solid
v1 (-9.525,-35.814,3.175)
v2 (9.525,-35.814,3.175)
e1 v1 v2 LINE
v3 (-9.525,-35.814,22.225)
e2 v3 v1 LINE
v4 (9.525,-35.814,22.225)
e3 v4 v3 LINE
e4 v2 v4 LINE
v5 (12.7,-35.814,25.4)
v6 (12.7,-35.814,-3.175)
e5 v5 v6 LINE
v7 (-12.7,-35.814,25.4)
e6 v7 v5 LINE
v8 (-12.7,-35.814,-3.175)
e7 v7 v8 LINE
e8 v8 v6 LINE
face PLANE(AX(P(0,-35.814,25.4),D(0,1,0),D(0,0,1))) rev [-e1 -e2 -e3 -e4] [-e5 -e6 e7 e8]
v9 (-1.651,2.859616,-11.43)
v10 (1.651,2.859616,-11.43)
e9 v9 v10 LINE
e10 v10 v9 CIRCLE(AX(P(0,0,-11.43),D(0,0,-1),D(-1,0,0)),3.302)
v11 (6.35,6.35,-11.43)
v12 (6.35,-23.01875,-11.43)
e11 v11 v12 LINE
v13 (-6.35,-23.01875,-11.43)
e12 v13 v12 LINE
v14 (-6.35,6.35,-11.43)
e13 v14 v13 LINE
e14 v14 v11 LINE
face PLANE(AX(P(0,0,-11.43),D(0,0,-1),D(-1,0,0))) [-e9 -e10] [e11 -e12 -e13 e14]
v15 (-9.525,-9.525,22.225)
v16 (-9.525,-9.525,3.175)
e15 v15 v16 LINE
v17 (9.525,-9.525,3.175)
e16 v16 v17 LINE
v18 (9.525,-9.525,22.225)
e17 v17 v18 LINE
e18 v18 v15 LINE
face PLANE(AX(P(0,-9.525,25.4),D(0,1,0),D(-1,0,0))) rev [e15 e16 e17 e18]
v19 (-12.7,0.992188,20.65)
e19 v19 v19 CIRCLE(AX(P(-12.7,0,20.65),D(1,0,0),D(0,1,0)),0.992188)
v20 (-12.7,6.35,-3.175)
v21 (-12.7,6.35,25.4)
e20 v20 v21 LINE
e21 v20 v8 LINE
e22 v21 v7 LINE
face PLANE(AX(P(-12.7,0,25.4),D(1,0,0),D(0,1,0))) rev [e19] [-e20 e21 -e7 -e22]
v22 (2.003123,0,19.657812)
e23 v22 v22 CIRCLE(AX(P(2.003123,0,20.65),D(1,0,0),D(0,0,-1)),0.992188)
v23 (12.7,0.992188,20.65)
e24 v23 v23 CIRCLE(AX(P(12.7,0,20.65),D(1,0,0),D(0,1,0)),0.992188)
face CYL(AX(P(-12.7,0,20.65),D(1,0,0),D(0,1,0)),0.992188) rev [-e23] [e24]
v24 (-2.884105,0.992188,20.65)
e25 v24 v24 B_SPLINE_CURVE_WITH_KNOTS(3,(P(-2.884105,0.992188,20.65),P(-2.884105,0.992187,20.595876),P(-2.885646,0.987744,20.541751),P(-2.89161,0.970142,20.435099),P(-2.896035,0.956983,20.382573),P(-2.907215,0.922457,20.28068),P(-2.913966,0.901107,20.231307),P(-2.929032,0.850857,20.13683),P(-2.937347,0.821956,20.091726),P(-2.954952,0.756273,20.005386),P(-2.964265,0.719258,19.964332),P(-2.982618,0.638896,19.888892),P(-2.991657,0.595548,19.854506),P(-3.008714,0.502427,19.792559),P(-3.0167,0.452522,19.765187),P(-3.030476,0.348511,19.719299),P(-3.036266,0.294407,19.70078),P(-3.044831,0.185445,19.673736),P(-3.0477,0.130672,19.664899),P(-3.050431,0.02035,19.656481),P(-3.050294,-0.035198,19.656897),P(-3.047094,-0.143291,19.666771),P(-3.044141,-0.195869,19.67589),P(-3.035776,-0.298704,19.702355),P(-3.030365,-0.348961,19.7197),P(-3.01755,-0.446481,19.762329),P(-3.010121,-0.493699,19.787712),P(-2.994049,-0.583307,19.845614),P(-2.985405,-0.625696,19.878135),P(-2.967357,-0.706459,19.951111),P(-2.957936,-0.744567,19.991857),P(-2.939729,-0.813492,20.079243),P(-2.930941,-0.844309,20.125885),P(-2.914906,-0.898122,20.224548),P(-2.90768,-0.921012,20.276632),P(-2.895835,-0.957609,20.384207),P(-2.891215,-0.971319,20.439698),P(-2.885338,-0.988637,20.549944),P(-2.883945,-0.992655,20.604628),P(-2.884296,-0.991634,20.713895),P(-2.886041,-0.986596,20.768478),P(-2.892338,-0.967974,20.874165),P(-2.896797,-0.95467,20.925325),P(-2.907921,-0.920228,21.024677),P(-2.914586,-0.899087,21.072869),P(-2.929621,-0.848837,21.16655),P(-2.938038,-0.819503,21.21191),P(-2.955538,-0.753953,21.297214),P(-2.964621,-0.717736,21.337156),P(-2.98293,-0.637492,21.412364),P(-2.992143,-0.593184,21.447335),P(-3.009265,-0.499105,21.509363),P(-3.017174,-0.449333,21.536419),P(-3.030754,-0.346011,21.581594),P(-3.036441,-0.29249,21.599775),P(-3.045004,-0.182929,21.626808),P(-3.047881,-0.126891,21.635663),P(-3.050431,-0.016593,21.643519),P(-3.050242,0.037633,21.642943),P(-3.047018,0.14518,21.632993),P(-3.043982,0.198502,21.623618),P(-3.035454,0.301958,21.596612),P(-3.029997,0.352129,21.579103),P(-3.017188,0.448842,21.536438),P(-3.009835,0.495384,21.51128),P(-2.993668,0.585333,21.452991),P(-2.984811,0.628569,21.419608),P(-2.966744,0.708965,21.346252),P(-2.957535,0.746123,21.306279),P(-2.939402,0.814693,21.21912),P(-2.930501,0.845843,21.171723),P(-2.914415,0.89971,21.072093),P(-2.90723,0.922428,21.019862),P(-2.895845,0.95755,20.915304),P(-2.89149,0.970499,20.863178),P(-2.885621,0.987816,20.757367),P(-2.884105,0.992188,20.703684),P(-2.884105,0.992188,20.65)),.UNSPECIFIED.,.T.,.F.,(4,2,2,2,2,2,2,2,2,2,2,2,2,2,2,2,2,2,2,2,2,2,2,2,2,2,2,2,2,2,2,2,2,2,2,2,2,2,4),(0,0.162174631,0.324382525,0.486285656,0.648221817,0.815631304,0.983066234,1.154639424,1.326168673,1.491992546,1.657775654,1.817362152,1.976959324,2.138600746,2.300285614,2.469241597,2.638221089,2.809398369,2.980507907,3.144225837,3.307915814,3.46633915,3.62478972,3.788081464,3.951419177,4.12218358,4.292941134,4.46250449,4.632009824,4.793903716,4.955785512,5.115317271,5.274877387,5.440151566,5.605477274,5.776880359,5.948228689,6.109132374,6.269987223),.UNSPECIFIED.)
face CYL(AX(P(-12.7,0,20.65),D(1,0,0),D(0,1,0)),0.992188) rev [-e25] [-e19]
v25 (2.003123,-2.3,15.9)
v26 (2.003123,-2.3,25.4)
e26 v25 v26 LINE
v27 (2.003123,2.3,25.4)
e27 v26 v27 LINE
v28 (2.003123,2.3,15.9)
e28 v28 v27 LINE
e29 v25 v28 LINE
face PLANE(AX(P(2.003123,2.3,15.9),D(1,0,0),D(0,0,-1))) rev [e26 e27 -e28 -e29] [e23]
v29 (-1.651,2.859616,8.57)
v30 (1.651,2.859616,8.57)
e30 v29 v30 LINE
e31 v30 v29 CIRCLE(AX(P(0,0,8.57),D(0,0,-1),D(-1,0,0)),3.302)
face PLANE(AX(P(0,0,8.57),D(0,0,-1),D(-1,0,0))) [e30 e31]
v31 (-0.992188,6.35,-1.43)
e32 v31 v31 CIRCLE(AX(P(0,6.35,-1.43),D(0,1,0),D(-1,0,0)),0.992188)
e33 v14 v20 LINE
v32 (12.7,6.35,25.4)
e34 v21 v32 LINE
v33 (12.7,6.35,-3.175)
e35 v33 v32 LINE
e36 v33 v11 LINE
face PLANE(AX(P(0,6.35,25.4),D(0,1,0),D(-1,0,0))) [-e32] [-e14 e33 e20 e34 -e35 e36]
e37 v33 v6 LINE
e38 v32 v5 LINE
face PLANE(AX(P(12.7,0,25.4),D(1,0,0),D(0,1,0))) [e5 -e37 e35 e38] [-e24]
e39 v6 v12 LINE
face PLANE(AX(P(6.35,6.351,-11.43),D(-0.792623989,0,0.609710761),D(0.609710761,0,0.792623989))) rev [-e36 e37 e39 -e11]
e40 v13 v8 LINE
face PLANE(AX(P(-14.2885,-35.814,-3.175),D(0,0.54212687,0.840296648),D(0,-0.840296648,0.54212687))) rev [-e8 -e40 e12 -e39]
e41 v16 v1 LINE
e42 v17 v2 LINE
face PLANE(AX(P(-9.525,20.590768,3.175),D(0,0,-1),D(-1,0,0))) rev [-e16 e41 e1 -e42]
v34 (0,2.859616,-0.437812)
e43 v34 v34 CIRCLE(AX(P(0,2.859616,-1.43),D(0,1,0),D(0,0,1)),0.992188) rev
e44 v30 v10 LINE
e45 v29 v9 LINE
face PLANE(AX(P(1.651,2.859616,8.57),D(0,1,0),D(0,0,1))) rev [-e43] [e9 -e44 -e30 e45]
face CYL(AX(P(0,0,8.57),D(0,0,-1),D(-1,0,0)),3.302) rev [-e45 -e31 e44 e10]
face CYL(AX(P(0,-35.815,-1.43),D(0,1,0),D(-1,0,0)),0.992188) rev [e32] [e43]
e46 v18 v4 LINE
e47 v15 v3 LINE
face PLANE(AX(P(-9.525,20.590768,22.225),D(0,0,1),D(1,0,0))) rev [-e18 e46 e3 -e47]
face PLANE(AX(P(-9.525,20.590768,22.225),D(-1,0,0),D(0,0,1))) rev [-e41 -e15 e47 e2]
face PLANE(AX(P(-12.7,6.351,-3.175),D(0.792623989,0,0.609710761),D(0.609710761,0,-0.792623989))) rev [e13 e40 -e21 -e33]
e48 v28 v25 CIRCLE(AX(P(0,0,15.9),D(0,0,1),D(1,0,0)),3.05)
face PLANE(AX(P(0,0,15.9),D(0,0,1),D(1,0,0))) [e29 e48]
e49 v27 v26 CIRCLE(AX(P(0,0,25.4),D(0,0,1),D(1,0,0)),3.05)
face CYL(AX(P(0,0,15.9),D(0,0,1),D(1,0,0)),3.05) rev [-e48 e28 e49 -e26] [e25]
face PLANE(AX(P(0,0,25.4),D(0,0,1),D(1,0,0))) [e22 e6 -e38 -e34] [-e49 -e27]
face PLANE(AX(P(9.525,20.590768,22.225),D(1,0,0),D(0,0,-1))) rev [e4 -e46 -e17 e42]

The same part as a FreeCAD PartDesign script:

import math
import FreeCAD as App
import Part
import Sketcher

V = App.Vector
Q = App.Units.Quantity


def add_polygon(sketch, points):
    """Adds a closed chain of lines whose ends are joined by coincident constraints."""
    first, n = sketch.GeometryCount, len(points)
    for a, b in zip(points, points[1:] + points[:1]):
        sketch.addGeometry(Part.LineSegment(App.Vector(*a, 0), App.Vector(*b, 0)), False)
    for i in range(n):
        sketch.addConstraint(Sketcher.Constraint("Coincident", first + i, 2, first + (i + 1) % n, 1))

doc = App.newDocument("Part")
params = doc.addObject("Spreadsheet::Sheet", "Params")
for row, (alias, value) in enumerate([
    ("sketch1_width", "1 in"),
    ("sketch1_height", "0.5 in"),
    ("sketch1_height2", "1.16 in"),
    ("sketch1_width2", "0.0625 in"),
    ("pad1_length", "1 in"),
    ("pocket1_length", "9.5 mm"),
    ("sketch3_width", "1 in"),
    ("sketch3_height", "1.66 in"),
    ("pad2_length", "0.45 in"),
    ("sketch4_height", "0.325 in"),
    ("sketch5_width", "0.25 in"),
    ("sketch5_height", "0.325 in"),
    ("pocket3_length", "1.66 in"),
    ("sketch6_width", "0.25 in"),
    ("sketch6_height", "0.325 in"),
    ("pocket4_length", "1.66 in"),
    ("sketch7_radius", "0.13 in"),
    ("sketch7_width", "0.13 in"),
    ("pocket5_length", "20 mm"),
    ("sketch8_width", "0.75 in"),
    ("pocket6_length", "1.035 in"),
    ("sketch9_height", "0.5 in"),
    ("sketch9_width", "0.0625 in"),
    ("sketch10_height", "0.5 in"),
    ("sketch10_width", "0.0625 in"),
    ("sketch11_diameter", "0.078125 in"),
    ("sketch12_diameter", "0.078125 in"),
], start=1):
    params.set(f"A{row}", alias)
    params.set(f"B{row}", "=" + value)
    params.setAlias(f"B{row}", alias)

body = doc.addObject("PartDesign::Body", "Body")

sketch1 = doc.addObject("Sketcher::SketchObject", "Sketch")
body.addObject(sketch1)
sketch1.AttachmentSupport = (doc.XY_Plane, [""])
sketch1.MapMode = "FlatFace"
add_polygon(sketch1, [(12.7, -6.3), (14.3, -6.3), (14.3, 6.3), (-14.3, 6.3), (-14.3, -6.3), (-12.7, -6.3), (-12.7, -35.8), (12.7, -35.8)])
sketch1.addConstraint(Sketcher.Constraint("Horizontal", 0))
sketch1.addConstraint(Sketcher.Constraint("Vertical", 1))
sketch1.addConstraint(Sketcher.Constraint("Horizontal", 2))
sketch1.addConstraint(Sketcher.Constraint("Vertical", 3))
sketch1.addConstraint(Sketcher.Constraint("Horizontal", 4))
sketch1.addConstraint(Sketcher.Constraint("Vertical", 5))
sketch1.addConstraint(Sketcher.Constraint("Horizontal", 6))
sketch1.addConstraint(Sketcher.Constraint("Vertical", 7))
sketch1.addConstraint(Sketcher.Constraint("Symmetric", 0, 2, 2, 2, -1, 1))
sketch1.addConstraint(Sketcher.Constraint("Symmetric", 4, 2, 7, 2, -2))
sketch1.addConstraint(Sketcher.Constraint("DistanceX", 6, 1, 6, 2, Q("1 in")))
sketch1.addConstraint(Sketcher.Constraint("DistanceY", 1, 1, 1, 2, Q("0.5 in")))
sketch1.addConstraint(Sketcher.Constraint("DistanceY", 5, 2, 5, 1, Q("1.16 in")))
sketch1.addConstraint(Sketcher.Constraint("DistanceX", 0, 1, 0, 2, Q("0.0625 in")))
sketch1.setExpression("Constraints[18]", "Params.sketch1_width")
sketch1.setExpression("Constraints[19]", "Params.sketch1_height")
sketch1.setExpression("Constraints[20]", "Params.sketch1_height2")
sketch1.setExpression("Constraints[21]", "Params.sketch1_width2")
pad1 = doc.addObject("PartDesign::Pad", "Pad")
body.addObject(pad1)
pad1.Profile = sketch1
pad1.setExpression("Length", "Params.pad1_length")

sketch2 = doc.addObject("Sketcher::SketchObject", "Sketch001")
body.addObject(sketch2)
sketch2.AttachmentSupport = (doc.XY_Plane, [""])
sketch2.MapMode = "FlatFace"
sketch2.AttachmentOffset = App.Placement(V(0, 0, 1 * 25.4), App.Rotation())
sketch2.addGeometry(Part.LineSegment(V(2, -2.3, 0), V(2, 2.3, 0)), False)
sketch2.addGeometry(Part.ArcOfCircle(Part.Circle(V(0, 0, 0), V(0, 0, 1), 3), math.radians(49), math.radians(311)), False)
sketch2.addConstraint(Sketcher.Constraint("Coincident", 0, 1, 1, 2))
sketch2.addConstraint(Sketcher.Constraint("Coincident", 1, 1, 0, 2))
sketch2.addConstraint(Sketcher.Constraint("Vertical", 0))
sketch2.addConstraint(Sketcher.Constraint("Coincident", 1, 3, -1, 1))
sketch2.addConstraint(Sketcher.Constraint("Radius", 1, Q("3.05 mm")))
sketch2.addConstraint(Sketcher.Constraint("DistanceY", 0, 1, 0, 2, Q("4.6 mm")))
pocket1 = doc.addObject("PartDesign::Pocket", "Pocket")
body.addObject(pocket1)
pocket1.Profile = sketch2
pocket1.setExpression("Length", "Params.pocket1_length")

sketch3 = doc.addObject("Sketcher::SketchObject", "Sketch002")
body.addObject(sketch3)
sketch3.AttachmentSupport = (doc.XY_Plane, [""])
sketch3.MapMode = "FlatFace"
add_polygon(sketch3, [(13, 6), (13, -36), (-13, -36), (-13, 6)])
sketch3.addConstraint(Sketcher.Constraint("Vertical", 0))
sketch3.addConstraint(Sketcher.Constraint("Horizontal", 1))
sketch3.addConstraint(Sketcher.Constraint("Vertical", 2))
sketch3.addConstraint(Sketcher.Constraint("Horizontal", 3))
sketch3.addConstraint(Sketcher.Constraint("DistanceX", 1, 2, 1, 1, Q("1 in")))
sketch3.addConstraint(Sketcher.Constraint("DistanceY", 0, 2, 0, 1, Q("1.66 in")))
sketch3.addConstraint(Sketcher.Constraint("DistanceX", -1, 1, 0, 2, Q("0.5 in")))
sketch3.addConstraint(Sketcher.Constraint("DistanceY", 0, 2, -1, 1, Q("1.41 in")))
sketch3.setExpression("Constraints[8]", "Params.sketch3_width")
sketch3.setExpression("Constraints[9]", "Params.sketch3_height")
pad2 = doc.addObject("PartDesign::Pad", "Pad001")
body.addObject(pad2)
pad2.Profile = sketch3
pad2.setExpression("Length", "Params.pad2_length")
pad2.Reversed = True

sketch4 = doc.addObject("Sketcher::SketchObject", "Sketch003")
body.addObject(sketch4)
sketch4.AttachmentSupport = (doc.YZ_Plane, [""])
sketch4.MapMode = "FlatFace"
sketch4.AttachmentOffset = App.Placement(V(0, 0, 0.5 * 25.4), App.Rotation())
add_polygon(sketch4, [(-23, -11), (-36, -3), (-36, -11)])
sketch4.addConstraint(Sketcher.Constraint("Vertical", 1))
sketch4.addConstraint(Sketcher.Constraint("Horizontal", 2))
sketch4.addConstraint(Sketcher.Constraint("DistanceY", 1, 2, 1, 1, Q("0.325 in")))
sketch4.addConstraint(Sketcher.Constraint("DistanceX", 0, 2, -1, 1, Q("1.41 in")))
sketch4.addConstraint(Sketcher.Constraint("DistanceY", 1, 2, -1, 1, Q("0.45 in")))
sketch4.addConstraint(Sketcher.Constraint("DistanceX", 2, 2, -1, 1, Q("0.90625 in")))
sketch4.setExpression("Constraints[5]", "Params.sketch4_height")
pocket2 = doc.addObject("PartDesign::Pocket", "Pocket001")
body.addObject(pocket2)
pocket2.Profile = sketch4
pocket2.Type = "UpToFirst"

sketch5 = doc.addObject("Sketcher::SketchObject", "Sketch004")
body.addObject(sketch5)
sketch5.AttachmentSupport = (doc.XZ_Plane, [""])
sketch5.MapMode = "FlatFace"
sketch5.AttachmentOffset = App.Placement(V(0, 0, 1.41 * 25.4), App.Rotation())
add_polygon(sketch5, [(-13, -3), (-13, -11), (-6, -11)])
sketch5.addConstraint(Sketcher.Constraint("Vertical", 0))
sketch5.addConstraint(Sketcher.Constraint("Horizontal", 1))
sketch5.addConstraint(Sketcher.Constraint("DistanceX", 1, 1, 1, 2, Q("0.25 in")))
sketch5.addConstraint(Sketcher.Constraint("DistanceX", 0, 2, -1, 1, Q("0.5 in")))
sketch5.addConstraint(Sketcher.Constraint("DistanceY", 0, 2, 0, 1, Q("0.325 in")))
sketch5.addConstraint(Sketcher.Constraint("DistanceY", 0, 2, -1, 1, Q("0.45 in")))
sketch5.setExpression("Constraints[5]", "Params.sketch5_width")
sketch5.setExpression("Constraints[7]", "Params.sketch5_height")
pocket3 = doc.addObject("PartDesign::Pocket", "Pocket002")
body.addObject(pocket3)
pocket3.Profile = sketch5
pocket3.setExpression("Length", "Params.pocket3_length")

sketch6 = doc.addObject("Sketcher::SketchObject", "Sketch005")
body.addObject(sketch6)
sketch6.AttachmentSupport = (doc.XZ_Plane, [""])
sketch6.MapMode = "FlatFace"
sketch6.AttachmentOffset = App.Placement(V(0, 0, 1.41 * 25.4), App.Rotation())
add_polygon(sketch6, [(13, -3), (6, -11), (13, -11)])
sketch6.addConstraint(Sketcher.Constraint("Horizontal", 1))
sketch6.addConstraint(Sketcher.Constraint("Vertical", 2))
sketch6.addConstraint(Sketcher.Constraint("DistanceX", 1, 1, 1, 2, Q("0.25 in")))
sketch6.addConstraint(Sketcher.Constraint("DistanceX", -1, 1, 1, 2, Q("0.5 in")))
sketch6.addConstraint(Sketcher.Constraint("DistanceY", 2, 1, 2, 2, Q("0.325 in")))
sketch6.addConstraint(Sketcher.Constraint("DistanceY", 0, 2, -1, 1, Q("0.45 in")))
sketch6.setExpression("Constraints[5]", "Params.sketch6_width")
sketch6.setExpression("Constraints[7]", "Params.sketch6_height")
pocket4 = doc.addObject("PartDesign::Pocket", "Pocket003")
body.addObject(pocket4)
pocket4.Profile = sketch6
pocket4.setExpression("Length", "Params.pocket4_length")

sketch7 = doc.addObject("Sketcher::SketchObject", "Sketch006")
body.addObject(sketch7)
sketch7.AttachmentSupport = (doc.XY_Plane, [""])
sketch7.MapMode = "FlatFace"
sketch7.AttachmentOffset = App.Placement(V(0, 0, -0.45 * 25.4), App.Rotation())
sketch7.addGeometry(Part.LineSegment(V(-1.7, 2.9, 0), V(1.7, 2.9, 0)), False)
sketch7.addGeometry(Part.ArcOfCircle(Part.Circle(V(0, 0, 0), V(0, 0, 1), 3.3), math.radians(120), math.radians(420)), False)
sketch7.addConstraint(Sketcher.Constraint("Coincident", 0, 1, 1, 1))
sketch7.addConstraint(Sketcher.Constraint("Coincident", 1, 2, 0, 2))
sketch7.addConstraint(Sketcher.Constraint("Horizontal", 0))
sketch7.addConstraint(Sketcher.Constraint("Coincident", 1, 3, -1, 1))
sketch7.addConstraint(Sketcher.Constraint("Radius", 1, Q("0.13 in")))
sketch7.addConstraint(Sketcher.Constraint("DistanceX", 0, 1, 0, 2, Q("0.13 in")))
sketch7.setExpression("Constraints[4]", "Params.sketch7_radius")
sketch7.setExpression("Constraints[5]", "Params.sketch7_width")
pocket5 = doc.addObject("PartDesign::Pocket", "Pocket004")
body.addObject(pocket5)
pocket5.Profile = sketch7
pocket5.setExpression("Length", "Params.pocket5_length")
pocket5.Reversed = True

sketch8 = doc.addObject("Sketcher::SketchObject", "Sketch007")
body.addObject(sketch8)
sketch8.AttachmentSupport = (doc.XZ_Plane, [""])
sketch8.MapMode = "FlatFace"
sketch8.AttachmentOffset = App.Placement(V(0, 0, 1.41 * 25.4), App.Rotation())
add_polygon(sketch8, [(-10, 22), (-10, 3), (10, 3), (10, 22)])
sketch8.addConstraint(Sketcher.Constraint("Vertical", 0))
sketch8.addConstraint(Sketcher.Constraint("Horizontal", 1))
sketch8.addConstraint(Sketcher.Constraint("Vertical", 2))
sketch8.addConstraint(Sketcher.Constraint("Horizontal", 3))
sketch8.addConstraint(Sketcher.Constraint("Equal", 3, 0))
sketch8.addConstraint(Sketcher.Constraint("DistanceX", 1, 1, 1, 2, Q("0.75 in")))
sketch8.addConstraint(Sketcher.Constraint("DistanceX", 0, 2, -1, 1, Q("0.375 in")))
sketch8.addConstraint(Sketcher.Constraint("DistanceY", -1, 1, 0, 2, Q("0.125 in")))
sketch8.setExpression("Constraints[9]", "Params.sketch8_width")
pocket6 = doc.addObject("PartDesign::Pocket", "Pocket005")
body.addObject(pocket6)
pocket6.Profile = sketch8
pocket6.setExpression("Length", "Params.pocket6_length")

sketch9 = doc.addObject("Sketcher::SketchObject", "Sketch008")
body.addObject(sketch9)
sketch9.AttachmentSupport = (doc.XY_Plane, [""])
sketch9.MapMode = "FlatFace"
sketch9.AttachmentOffset = App.Placement(V(0, 0, 1 * 25.4), App.Rotation())
add_polygon(sketch9, [(-14.3, 6.3), (-14.3, -6.3), (-12.7, -6.3), (-12.7, 6.3)])
sketch9.addConstraint(Sketcher.Constraint("Vertical", 0))
sketch9.addConstraint(Sketcher.Constraint("Horizontal", 1))
sketch9.addConstraint(Sketcher.Constraint("Vertical", 2))
sketch9.addConstraint(Sketcher.Constraint("Horizontal", 3))
sketch9.addConstraint(Sketcher.Constraint("DistanceY", 0, 2, 0, 1, Q("0.5 in")))
sketch9.addConstraint(Sketcher.Constraint("DistanceX", 1, 2, -1, 1, Q("0.5 in")))
sketch9.addConstraint(Sketcher.Constraint("DistanceX", 1, 1, 1, 2, Q("0.0625 in")))
sketch9.addConstraint(Sketcher.Constraint("DistanceY", 0, 2, -1, 1, Q("0.25 in")))
sketch9.setExpression("Constraints[8]", "Params.sketch9_height")
sketch9.setExpression("Constraints[10]", "Params.sketch9_width")
pocket7 = doc.addObject("PartDesign::Pocket", "Pocket006")
body.addObject(pocket7)
pocket7.Profile = sketch9
pocket7.Type = "UpToFirst"

sketch10 = doc.addObject("Sketcher::SketchObject", "Sketch009")
body.addObject(sketch10)
sketch10.AttachmentSupport = (doc.XY_Plane, [""])
sketch10.MapMode = "FlatFace"
sketch10.AttachmentOffset = App.Placement(V(0, 0, 1 * 25.4), App.Rotation())
add_polygon(sketch10, [(12.7, 6.3), (12.7, -6.3), (14.3, -6.3), (14.3, 6.3)])
sketch10.addConstraint(Sketcher.Constraint("Vertical", 0))
sketch10.addConstraint(Sketcher.Constraint("Horizontal", 1))
sketch10.addConstraint(Sketcher.Constraint("Vertical", 2))
sketch10.addConstraint(Sketcher.Constraint("Horizontal", 3))
sketch10.addConstraint(Sketcher.Constraint("DistanceY", 0, 2, 0, 1, Q("0.5 in")))
sketch10.addConstraint(Sketcher.Constraint("DistanceX", -1, 1, 0, 2, Q("0.5 in")))
sketch10.addConstraint(Sketcher.Constraint("DistanceX", 1, 1, 1, 2, Q("0.0625 in")))
sketch10.addConstraint(Sketcher.Constraint("DistanceY", 0, 2, -1, 1, Q("0.25 in")))
sketch10.setExpression("Constraints[8]", "Params.sketch10_height")
sketch10.setExpression("Constraints[10]", "Params.sketch10_width")
pocket8 = doc.addObject("PartDesign::Pocket", "Pocket007")
body.addObject(pocket8)
pocket8.Profile = sketch10
pocket8.Type = "UpToFirst"

sketch11 = doc.addObject("Sketcher::SketchObject", "Sketch010")
body.addObject(sketch11)
sketch11.AttachmentSupport = (doc.YZ_Plane, [""])
sketch11.MapMode = "FlatFace"
sketch11.AttachmentOffset = App.Placement(V(0, 0, 0.5 * 25.4), App.Rotation())
sketch11.addGeometry(Part.Circle(V(0, 20.6, 0), V(0, 0, 1), 1), False)
sketch11.addConstraint(Sketcher.Constraint("PointOnObject", 0, 3, -2))
sketch11.addConstraint(Sketcher.Constraint("Diameter", 0, Q("0.078125 in")))
sketch11.addConstraint(Sketcher.Constraint("DistanceY", -1, 1, 0, 3, Q("20.65 mm")))
sketch11.setExpression("Constraints[1]", "Params.sketch11_diameter")
pocket9 = doc.addObject("PartDesign::Pocket", "Pocket008")
body.addObject(pocket9)
pocket9.Profile = sketch11
pocket9.Type = "ThroughAll"

sketch12 = doc.addObject("Sketcher::SketchObject", "Sketch011")
body.addObject(sketch12)
sketch12.AttachmentSupport = (doc.XZ_Plane, [""])
sketch12.MapMode = "FlatFace"
sketch12.AttachmentOffset = App.Placement(V(0, 0, -0.25 * 25.4), App.Rotation())
sketch12.addGeometry(Part.Circle(V(0, -1.4, 0), V(0, 0, 1), 1), False)
sketch12.addConstraint(Sketcher.Constraint("PointOnObject", 0, 3, -2))
sketch12.addConstraint(Sketcher.Constraint("Diameter", 0, Q("0.078125 in")))
sketch12.addConstraint(Sketcher.Constraint("DistanceY", 0, 3, -1, 1, Q("1.43 mm")))
sketch12.setExpression("Constraints[1]", "Params.sketch12_diameter")
pocket10 = doc.addObject("PartDesign::Pocket", "Pocket009")
body.addObject(pocket10)
pocket10.Profile = sketch12
pocket10.Type = "UpToFirst"
pocket10.Reversed = True

doc.recompute()
